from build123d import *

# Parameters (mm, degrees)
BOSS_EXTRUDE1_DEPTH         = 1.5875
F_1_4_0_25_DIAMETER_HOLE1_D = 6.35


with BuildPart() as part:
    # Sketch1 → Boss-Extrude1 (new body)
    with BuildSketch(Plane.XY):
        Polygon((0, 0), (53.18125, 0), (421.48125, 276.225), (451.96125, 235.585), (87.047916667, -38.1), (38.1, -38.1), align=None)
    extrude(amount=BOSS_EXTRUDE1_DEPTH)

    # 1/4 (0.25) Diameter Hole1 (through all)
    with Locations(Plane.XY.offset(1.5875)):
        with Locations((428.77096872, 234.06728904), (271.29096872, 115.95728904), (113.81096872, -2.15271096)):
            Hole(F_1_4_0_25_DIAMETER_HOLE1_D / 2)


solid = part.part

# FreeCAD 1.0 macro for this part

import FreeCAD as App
import Part
import Sketcher

V = App.Vector
Q = App.Units.Quantity


def add_polygon(sketch, points):
    """Adds a closed chain of lines whose ends are joined by coincident constraints."""
    first, n = sketch.GeometryCount, len(points)
    for a, b in zip(points, points[1:] + points[:1]):
        sketch.addGeometry(Part.LineSegment(App.Vector(*a, 0), App.Vector(*b, 0)), False)
    for i in range(n):
        sketch.addConstraint(Sketcher.Constraint("Coincident", first + i, 2, first + (i + 1) % n, 1))

doc = App.newDocument("Part")
body = doc.addObject("PartDesign::Body", "Body")

# Sketch on XY plane
sketch1 = doc.addObject("Sketcher::SketchObject", "Sketch")
body.addObject(sketch1)
sketch1.AttachmentSupport = (doc.XY_Plane, [""])
sketch1.MapMode = "FlatFace"
add_polygon(sketch1, [(53, 0), (0, 0), (38, -38), (87, -38), (452, 236), (421, 276)])  # lines 0-5
sketch1.addConstraint([
    Sketcher.Constraint("Horizontal", 0),
    Sketcher.Constraint("Horizontal", 2),
    Sketcher.Constraint("Coincident", 0, 2, -1, 1),
    Sketcher.Constraint("Perpendicular", 3, 4),
    Sketcher.Constraint("Perpendicular", 4, 5),
    Sketcher.Constraint("Distance", 4, Q("2 in")),
    Sketcher.Constraint("Angle", 1, Q("-45 deg")),
    Sketcher.Constraint("DistanceX", -1, 1, 1, 2, Q("1.5 in")),
    Sketcher.Constraint("DistanceX", 4, 2, 3, 2, Q("1.2 in")),
    Sketcher.Constraint("DistanceX", 5, 2, 4, 2, Q("14.5 in")),
    Sketcher.Constraint("DistanceX", 0, 2, 0, 1, Q("2.09375 in")),
])
pad1 = doc.addObject("PartDesign::Pad", "Pad")
body.addObject(pad1)
pad1.Profile = sketch1
pad1.Length = Q("0.0625 in")

# Sketch on XY plane
sketch2 = doc.addObject("Sketcher::SketchObject", "Sketch001")
body.addObject(sketch2)
sketch2.AttachmentSupport = (doc.XY_Plane, [""])
sketch2.MapMode = "FlatFace"
sketch2.AttachmentOffset = App.Placement(V(0, 0, 0.0625 * 25.4), App.Rotation())
sketch2.addGeometry([
    Part.Circle(V(428.8, 234.1, 0), V(0, 0, 1), 3.2),
    Part.Circle(V(271.3, 116, 0), V(0, 0, 1), 3.2),
    Part.Circle(V(113.8, -2.2, 0), V(0, 0, 1), 3.2),
], False)
sketch2.addConstraint([
    Sketcher.Constraint("Equal", 0, 1),
    Sketcher.Constraint("Equal", 1, 2),
    Sketcher.Constraint("Diameter", 0, Q("0.25 in")),
    Sketcher.Constraint("DistanceX", 1, 3, 0, 3, Q("6.2 in")),
    Sketcher.Constraint("DistanceX", 2, 3, 1, 3, Q("6.2 in")),
    Sketcher.Constraint("DistanceY", 2, 3, 0, 3, Q("9.3 in")),
    Sketcher.Constraint("DistanceY", 1, 3, 0, 3, Q("4.65 in")),
    Sketcher.Constraint("DistanceX", -1, 1, 0, 3, 428.770969),
    Sketcher.Constraint("DistanceY", -1, 1, 0, 3, 234.067289),
])
doc.recompute()
hole = doc.addObject("PartDesign::Hole", "Hole")
body.addObject(hole)
hole.Profile = sketch2
hole.ThreadType = "None"
hole.Diameter = Q("0.25 in")
hole.DepthType = "ThroughAll"

doc.recompute()
